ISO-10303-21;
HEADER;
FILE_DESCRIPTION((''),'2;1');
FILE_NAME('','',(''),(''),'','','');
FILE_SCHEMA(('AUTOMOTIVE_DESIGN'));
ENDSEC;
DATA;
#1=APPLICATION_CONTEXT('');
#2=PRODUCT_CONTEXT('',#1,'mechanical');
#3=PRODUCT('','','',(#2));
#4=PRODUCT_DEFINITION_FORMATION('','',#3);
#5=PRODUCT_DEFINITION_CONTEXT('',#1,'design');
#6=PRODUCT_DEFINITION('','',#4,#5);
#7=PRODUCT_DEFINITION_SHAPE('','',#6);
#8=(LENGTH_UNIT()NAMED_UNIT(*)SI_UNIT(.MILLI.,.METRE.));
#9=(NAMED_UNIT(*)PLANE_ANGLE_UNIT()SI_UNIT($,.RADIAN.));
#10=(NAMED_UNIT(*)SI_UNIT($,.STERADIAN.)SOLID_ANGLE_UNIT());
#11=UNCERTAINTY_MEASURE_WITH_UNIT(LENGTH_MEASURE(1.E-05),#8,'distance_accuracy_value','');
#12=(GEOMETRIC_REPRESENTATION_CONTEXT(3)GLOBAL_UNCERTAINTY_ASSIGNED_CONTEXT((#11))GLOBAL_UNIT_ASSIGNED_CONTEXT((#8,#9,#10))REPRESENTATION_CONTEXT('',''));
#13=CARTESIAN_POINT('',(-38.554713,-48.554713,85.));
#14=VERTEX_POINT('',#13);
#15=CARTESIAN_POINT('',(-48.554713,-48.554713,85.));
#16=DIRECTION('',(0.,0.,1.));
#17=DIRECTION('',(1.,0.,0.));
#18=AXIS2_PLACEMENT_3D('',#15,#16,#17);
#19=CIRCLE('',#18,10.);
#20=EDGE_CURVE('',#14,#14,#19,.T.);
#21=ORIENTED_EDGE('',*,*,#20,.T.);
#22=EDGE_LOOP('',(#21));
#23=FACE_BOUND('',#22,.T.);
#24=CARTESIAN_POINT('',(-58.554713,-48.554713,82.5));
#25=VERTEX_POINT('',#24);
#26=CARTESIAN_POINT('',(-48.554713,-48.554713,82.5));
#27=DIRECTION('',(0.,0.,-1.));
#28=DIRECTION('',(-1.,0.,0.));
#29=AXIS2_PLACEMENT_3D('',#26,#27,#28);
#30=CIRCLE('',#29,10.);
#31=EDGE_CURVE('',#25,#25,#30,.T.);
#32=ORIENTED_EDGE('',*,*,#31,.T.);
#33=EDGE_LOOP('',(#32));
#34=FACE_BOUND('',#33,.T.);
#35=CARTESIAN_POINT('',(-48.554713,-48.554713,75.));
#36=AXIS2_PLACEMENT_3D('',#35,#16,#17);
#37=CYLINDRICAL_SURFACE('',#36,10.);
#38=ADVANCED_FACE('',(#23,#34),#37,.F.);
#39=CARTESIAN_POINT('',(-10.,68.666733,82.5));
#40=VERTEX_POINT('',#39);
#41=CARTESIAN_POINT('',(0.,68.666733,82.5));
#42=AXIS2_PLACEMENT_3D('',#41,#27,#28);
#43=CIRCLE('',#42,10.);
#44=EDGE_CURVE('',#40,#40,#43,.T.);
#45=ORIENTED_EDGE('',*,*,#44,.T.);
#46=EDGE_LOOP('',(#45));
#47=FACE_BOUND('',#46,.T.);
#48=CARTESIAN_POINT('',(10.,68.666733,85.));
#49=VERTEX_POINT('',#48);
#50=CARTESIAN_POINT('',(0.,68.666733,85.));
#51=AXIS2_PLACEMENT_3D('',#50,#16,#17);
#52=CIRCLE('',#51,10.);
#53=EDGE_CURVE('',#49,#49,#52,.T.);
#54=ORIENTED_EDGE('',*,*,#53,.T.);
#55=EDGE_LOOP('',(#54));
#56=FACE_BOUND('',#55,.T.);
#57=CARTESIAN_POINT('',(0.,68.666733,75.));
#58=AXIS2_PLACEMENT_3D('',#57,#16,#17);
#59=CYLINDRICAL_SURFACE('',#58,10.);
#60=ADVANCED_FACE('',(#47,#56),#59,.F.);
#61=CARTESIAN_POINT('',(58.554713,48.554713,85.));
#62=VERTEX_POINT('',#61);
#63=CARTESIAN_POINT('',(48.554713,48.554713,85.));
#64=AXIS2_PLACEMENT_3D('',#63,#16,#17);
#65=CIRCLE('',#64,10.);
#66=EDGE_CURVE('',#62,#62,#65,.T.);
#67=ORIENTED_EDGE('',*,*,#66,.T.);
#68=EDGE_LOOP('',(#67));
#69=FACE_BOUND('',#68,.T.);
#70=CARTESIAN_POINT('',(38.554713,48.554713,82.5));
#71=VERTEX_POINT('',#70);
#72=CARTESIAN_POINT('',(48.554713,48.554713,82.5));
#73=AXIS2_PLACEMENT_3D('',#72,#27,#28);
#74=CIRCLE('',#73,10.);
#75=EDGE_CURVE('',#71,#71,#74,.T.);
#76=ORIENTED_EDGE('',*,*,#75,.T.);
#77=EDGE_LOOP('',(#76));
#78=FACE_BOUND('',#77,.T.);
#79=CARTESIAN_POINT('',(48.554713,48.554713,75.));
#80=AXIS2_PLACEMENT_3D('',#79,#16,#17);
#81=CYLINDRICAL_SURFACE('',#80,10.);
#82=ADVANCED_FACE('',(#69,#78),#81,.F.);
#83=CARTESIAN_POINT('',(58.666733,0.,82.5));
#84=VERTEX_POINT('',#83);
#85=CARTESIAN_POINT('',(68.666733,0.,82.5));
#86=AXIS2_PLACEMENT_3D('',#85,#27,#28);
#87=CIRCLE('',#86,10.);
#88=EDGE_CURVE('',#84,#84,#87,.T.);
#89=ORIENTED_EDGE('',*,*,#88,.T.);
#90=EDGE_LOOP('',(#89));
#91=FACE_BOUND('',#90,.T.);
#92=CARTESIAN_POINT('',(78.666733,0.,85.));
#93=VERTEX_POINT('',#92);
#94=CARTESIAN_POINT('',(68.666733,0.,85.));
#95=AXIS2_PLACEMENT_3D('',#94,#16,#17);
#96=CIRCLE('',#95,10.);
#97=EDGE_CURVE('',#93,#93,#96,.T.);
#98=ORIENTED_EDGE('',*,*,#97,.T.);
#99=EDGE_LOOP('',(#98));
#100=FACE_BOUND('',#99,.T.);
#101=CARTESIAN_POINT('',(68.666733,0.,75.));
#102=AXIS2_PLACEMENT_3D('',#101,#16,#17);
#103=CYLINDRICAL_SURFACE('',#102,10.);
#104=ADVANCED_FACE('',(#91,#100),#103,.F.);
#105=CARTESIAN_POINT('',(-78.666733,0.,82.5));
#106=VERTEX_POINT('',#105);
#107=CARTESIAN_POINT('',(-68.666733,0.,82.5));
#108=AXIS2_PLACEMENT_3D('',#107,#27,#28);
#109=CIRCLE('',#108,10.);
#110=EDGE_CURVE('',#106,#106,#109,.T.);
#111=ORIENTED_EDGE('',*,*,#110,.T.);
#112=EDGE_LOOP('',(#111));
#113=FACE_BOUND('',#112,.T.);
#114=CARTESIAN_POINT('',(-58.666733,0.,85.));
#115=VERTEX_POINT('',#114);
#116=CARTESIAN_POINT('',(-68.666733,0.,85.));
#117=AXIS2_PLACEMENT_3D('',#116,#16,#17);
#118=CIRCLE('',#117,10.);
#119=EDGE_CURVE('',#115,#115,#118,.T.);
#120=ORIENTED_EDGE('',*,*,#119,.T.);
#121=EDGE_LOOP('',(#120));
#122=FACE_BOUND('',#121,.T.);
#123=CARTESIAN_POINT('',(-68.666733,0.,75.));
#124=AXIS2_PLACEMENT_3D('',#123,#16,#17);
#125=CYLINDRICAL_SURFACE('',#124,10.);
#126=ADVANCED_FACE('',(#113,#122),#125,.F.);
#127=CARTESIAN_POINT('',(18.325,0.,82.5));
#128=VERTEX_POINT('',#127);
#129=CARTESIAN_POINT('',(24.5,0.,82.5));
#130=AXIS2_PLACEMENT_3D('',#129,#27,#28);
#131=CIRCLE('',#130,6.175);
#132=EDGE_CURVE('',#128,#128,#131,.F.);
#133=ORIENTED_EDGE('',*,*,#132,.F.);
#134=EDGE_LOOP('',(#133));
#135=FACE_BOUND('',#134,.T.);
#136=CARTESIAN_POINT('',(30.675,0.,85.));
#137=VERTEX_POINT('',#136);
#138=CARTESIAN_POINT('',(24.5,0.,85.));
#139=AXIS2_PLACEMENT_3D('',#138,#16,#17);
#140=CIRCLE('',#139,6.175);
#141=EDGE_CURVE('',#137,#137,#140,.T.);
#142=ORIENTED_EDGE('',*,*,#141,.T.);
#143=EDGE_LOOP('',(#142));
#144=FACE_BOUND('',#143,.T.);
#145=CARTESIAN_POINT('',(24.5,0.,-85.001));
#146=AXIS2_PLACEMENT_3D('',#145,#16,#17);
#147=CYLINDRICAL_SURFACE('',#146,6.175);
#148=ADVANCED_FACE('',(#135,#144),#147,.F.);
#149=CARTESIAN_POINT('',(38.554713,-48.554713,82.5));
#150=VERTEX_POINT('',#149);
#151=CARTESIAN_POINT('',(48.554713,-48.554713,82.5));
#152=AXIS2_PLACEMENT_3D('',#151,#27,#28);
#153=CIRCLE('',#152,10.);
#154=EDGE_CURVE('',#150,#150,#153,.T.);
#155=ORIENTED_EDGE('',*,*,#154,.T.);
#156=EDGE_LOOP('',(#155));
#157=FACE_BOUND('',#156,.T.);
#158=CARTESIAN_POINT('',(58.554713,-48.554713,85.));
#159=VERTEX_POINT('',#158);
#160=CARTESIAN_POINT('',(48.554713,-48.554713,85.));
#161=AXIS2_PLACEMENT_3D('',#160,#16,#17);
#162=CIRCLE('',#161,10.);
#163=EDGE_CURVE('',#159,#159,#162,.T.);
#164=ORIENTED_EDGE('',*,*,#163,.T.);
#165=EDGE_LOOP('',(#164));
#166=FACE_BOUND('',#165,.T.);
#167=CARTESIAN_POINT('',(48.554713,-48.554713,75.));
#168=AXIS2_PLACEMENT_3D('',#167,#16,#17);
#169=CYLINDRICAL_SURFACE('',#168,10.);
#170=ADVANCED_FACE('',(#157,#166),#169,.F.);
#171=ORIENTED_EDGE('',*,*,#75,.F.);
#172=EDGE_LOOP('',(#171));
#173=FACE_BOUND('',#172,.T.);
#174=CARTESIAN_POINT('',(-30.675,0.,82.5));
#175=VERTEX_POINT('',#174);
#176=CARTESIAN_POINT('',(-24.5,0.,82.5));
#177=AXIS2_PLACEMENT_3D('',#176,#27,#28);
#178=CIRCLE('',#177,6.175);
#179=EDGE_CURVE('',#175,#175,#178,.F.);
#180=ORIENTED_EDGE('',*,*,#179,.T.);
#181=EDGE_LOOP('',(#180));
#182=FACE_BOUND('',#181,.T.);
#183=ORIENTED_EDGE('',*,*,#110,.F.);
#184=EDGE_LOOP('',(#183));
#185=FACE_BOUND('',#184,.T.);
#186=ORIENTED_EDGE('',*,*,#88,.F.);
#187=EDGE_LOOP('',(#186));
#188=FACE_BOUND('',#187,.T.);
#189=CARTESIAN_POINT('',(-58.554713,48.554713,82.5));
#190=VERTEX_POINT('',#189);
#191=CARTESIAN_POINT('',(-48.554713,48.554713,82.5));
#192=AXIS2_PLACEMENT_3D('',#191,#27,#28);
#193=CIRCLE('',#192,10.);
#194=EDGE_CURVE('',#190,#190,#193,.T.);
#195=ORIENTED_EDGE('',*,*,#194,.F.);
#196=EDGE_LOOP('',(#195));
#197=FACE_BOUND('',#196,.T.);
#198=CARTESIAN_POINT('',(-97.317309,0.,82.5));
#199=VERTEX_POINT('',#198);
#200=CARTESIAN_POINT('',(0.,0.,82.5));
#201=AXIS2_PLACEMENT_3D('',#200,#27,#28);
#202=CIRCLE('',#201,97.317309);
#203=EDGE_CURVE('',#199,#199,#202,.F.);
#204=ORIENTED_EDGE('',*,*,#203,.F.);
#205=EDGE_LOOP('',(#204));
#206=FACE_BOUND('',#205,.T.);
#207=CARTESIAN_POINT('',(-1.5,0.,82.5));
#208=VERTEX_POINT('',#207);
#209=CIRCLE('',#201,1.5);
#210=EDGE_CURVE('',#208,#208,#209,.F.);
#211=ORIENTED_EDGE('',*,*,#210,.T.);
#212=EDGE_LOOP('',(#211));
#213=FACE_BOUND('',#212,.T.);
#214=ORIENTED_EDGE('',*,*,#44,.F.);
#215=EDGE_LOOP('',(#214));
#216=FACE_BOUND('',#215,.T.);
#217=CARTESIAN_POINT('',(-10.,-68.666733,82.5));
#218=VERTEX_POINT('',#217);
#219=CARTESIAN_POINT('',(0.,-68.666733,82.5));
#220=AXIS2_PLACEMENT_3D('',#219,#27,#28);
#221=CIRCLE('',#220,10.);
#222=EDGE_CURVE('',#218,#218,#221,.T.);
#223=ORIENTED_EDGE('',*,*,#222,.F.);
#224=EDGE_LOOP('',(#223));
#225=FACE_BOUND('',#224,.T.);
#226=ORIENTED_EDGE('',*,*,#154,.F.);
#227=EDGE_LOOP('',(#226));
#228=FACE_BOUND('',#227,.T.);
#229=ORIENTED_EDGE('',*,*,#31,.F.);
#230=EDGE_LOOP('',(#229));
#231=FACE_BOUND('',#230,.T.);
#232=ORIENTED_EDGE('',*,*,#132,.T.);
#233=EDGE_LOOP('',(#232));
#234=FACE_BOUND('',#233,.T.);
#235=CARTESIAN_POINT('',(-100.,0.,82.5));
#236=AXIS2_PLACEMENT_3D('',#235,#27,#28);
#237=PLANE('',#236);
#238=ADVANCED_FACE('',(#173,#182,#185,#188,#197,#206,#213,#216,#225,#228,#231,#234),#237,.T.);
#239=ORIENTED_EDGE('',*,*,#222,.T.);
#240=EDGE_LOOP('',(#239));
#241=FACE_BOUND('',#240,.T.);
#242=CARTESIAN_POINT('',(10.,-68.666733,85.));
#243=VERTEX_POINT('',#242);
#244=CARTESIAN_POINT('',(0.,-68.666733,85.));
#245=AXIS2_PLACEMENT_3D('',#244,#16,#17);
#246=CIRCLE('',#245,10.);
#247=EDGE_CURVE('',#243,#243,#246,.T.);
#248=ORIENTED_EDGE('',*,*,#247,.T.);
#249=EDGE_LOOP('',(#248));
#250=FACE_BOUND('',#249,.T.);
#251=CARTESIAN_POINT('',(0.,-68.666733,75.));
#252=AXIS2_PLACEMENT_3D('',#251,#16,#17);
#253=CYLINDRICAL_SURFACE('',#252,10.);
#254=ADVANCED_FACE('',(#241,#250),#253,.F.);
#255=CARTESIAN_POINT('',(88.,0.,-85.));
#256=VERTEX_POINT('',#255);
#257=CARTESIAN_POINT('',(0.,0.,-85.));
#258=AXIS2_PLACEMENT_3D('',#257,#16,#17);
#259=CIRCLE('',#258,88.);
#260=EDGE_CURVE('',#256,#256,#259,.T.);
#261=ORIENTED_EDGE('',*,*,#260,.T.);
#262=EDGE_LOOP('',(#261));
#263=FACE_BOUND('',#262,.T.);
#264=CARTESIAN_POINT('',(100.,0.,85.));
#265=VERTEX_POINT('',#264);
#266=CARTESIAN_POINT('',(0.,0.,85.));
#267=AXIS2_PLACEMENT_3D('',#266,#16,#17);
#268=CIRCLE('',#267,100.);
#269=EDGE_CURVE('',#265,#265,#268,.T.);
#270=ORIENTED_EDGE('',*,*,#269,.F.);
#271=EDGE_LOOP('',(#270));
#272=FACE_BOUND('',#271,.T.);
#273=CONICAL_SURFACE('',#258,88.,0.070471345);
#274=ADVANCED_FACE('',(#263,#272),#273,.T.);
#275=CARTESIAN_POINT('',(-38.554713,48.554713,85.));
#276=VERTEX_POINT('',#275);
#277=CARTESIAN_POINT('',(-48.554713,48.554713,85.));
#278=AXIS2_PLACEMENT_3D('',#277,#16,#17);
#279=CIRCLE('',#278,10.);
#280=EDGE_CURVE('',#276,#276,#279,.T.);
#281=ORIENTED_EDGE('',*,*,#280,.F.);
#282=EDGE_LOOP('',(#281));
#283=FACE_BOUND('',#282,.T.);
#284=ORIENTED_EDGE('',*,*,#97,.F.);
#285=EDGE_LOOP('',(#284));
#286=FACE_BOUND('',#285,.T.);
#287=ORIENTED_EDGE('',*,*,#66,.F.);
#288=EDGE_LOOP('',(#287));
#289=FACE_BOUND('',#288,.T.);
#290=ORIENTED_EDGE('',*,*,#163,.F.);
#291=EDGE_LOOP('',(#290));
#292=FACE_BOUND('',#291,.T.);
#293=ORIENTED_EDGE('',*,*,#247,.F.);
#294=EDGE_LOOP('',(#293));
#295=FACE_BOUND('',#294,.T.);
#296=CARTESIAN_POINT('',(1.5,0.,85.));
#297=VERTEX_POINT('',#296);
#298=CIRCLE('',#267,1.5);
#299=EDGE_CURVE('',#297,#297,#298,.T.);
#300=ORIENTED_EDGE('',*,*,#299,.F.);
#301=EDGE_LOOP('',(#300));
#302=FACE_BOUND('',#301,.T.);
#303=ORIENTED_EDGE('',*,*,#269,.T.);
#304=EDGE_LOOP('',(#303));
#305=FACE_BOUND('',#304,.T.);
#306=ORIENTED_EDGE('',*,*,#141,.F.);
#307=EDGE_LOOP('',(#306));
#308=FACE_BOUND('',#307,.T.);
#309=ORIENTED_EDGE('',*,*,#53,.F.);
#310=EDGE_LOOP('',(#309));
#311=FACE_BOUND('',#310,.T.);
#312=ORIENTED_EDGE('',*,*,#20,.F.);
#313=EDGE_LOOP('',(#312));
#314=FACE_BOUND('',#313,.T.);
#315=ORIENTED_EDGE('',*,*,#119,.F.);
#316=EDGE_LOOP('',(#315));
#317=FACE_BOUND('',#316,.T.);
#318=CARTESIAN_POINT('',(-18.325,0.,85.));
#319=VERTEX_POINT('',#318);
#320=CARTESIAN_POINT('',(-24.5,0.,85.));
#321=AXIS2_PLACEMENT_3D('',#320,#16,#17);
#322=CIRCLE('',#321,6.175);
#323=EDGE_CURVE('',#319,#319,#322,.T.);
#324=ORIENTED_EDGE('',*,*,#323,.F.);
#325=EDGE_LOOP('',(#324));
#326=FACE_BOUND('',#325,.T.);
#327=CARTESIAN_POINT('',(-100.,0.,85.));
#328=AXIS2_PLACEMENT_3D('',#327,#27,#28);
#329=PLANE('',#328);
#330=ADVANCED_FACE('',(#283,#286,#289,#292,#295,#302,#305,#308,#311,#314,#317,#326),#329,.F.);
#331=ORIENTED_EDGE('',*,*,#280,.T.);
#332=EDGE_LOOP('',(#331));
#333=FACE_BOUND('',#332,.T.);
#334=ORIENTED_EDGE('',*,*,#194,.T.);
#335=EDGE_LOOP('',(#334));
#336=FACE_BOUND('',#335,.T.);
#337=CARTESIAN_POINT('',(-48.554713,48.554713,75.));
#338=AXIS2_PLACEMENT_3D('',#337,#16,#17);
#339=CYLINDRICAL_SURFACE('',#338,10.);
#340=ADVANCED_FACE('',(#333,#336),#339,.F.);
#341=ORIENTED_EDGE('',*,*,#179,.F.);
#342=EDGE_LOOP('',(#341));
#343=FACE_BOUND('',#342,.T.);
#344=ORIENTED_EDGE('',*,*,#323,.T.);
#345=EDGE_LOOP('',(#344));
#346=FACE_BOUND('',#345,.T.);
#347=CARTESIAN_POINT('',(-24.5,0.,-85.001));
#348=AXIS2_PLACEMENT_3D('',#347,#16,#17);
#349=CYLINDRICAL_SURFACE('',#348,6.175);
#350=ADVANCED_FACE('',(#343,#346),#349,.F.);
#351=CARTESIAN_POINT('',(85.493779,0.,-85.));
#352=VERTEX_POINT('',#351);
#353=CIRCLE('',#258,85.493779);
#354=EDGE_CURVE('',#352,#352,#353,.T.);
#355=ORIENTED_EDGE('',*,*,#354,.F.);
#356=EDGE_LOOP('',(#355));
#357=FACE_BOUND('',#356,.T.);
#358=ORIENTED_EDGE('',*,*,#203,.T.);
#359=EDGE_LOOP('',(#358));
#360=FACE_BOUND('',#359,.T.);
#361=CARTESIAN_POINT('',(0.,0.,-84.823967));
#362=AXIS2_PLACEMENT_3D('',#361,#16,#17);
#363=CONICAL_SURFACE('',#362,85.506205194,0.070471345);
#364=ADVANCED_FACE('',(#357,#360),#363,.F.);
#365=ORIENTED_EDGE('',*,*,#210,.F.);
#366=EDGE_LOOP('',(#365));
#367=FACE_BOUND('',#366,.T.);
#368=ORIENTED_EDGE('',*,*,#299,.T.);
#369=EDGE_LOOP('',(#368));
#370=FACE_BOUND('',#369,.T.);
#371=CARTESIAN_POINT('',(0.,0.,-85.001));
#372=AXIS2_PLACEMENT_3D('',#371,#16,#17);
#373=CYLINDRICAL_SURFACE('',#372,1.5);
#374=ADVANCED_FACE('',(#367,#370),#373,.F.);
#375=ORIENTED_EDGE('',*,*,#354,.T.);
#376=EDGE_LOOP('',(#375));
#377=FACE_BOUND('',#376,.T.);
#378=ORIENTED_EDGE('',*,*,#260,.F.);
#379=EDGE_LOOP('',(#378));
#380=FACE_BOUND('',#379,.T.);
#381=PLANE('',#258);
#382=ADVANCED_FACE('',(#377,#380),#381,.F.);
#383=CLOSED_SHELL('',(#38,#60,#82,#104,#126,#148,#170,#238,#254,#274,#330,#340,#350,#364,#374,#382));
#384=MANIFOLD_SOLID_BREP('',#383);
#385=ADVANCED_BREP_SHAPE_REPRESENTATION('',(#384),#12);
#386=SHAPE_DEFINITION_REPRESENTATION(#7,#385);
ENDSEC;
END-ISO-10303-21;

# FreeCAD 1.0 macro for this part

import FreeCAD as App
import Part
import Sketcher


def faces_at(feature, points):
    """Names of the faces that lie closest to the given points."""
    faces = feature.Shape.Faces
    near = lambda p: min(range(len(faces)), key=lambda i: faces[i].distToShape(Part.Vertex(*p))[0])
    return sorted({f"Face{near(p) + 1}" for p in points})


def add_polygon(sketch, points):
    """Adds a closed chain of lines whose ends are joined by coincident constraints."""
    first, n = sketch.GeometryCount, len(points)
    for a, b in zip(points, points[1:] + points[:1]):
        sketch.addGeometry(Part.LineSegment(App.Vector(*a, 0), App.Vector(*b, 0)), False)
    for i in range(n):
        sketch.addConstraint(Sketcher.Constraint("Coincident", first + i, 2, first + (i + 1) % n, 1))

doc = App.newDocument("Part")
params = doc.addObject("Spreadsheet::Sheet", "Params")
for row, (alias, value) in enumerate([
    ("sketch1_width", "88 mm"),
    ("sketch1_width2", "100 mm"),
    ("sketch1_height", "170 mm"),
    ("revolution_angle", "360 deg"),
    ("thickness_wall", "2.5 mm"),
    ("sketch2_diameter", "3 mm"),
    ("sketch3_diameter", "12.35 mm"),
    ("sketch4_diameter", "12.35 mm"),
    ("sketch5_diameter", "20 mm"),
    ("pocket4_length", "10 mm"),
], start=1):
    params.set(f"A{row}", alias)
    params.set(f"B{row}", "=" + value)
    params.setAlias(f"B{row}", alias)

body = doc.addObject("PartDesign::Body", "Body")

sketch1 = doc.addObject("Sketcher::SketchObject", "Sketch")
body.addObject(sketch1)
sketch1.AttachmentSupport = (doc.XZ_Plane, [""])
sketch1.MapMode = "FlatFace"
add_polygon(sketch1, [(0, 85), (0, -85), (-88, -85), (-100, 85)])
sketch1.addConstraint([
    Sketcher.Constraint("Vertical", 0),
    Sketcher.Constraint("Horizontal", 1),
    Sketcher.Constraint("Horizontal", 3),
    Sketcher.Constraint("Symmetric", 0, 2, 3, 2, -1, 1),
    Sketcher.Constraint("DistanceX", 1, 2, 1, 1, 88.0),
    Sketcher.Constraint("DistanceX", 3, 1, 3, 2, 100.0),
    Sketcher.Constraint("DistanceY", 0, 2, 0, 1, 170.0),
])
sketch1.setExpression("Constraints[8]", "Params.sketch1_width")
sketch1.setExpression("Constraints[9]", "Params.sketch1_width2")
sketch1.setExpression("Constraints[10]", "Params.sketch1_height")
revolution = doc.addObject("PartDesign::Revolution", "Revolution")
body.addObject(revolution)
revolution.Profile = sketch1
revolution.ReferenceAxis = (sketch1, ["V_Axis"])
revolution.setExpression("Angle", "Params.revolution_angle")
doc.recompute()

thickness = doc.addObject("PartDesign::Thickness", "Thickness")
body.addObject(thickness)
thickness.Base = (revolution, faces_at(revolution, [(0, 0, -85)]))
thickness.setExpression("Value", "Params.thickness_wall")
thickness.Reversed = True
thickness.Join = "Intersection"

sketch2 = doc.addObject("Sketcher::SketchObject", "Sketch001")
body.addObject(sketch2)
sketch2.AttachmentSupport = (doc.XY_Plane, [""])
sketch2.MapMode = "FlatFace"
sketch2.AttachmentOffset = App.Placement(App.Vector(0, 0, 85), App.Rotation())
sketch2.addGeometry(Part.Circle(App.Vector(0, 0, 0), App.Vector(0, 0, 1), 1.5), False)
sketch2.addConstraint([
    Sketcher.Constraint("Coincident", 0, 3, -1, 1),
    Sketcher.Constraint("Diameter", 0, 3.0),
])
sketch2.setExpression("Constraints[1]", "Params.sketch2_diameter")
pocket1 = doc.addObject("PartDesign::Pocket", "Pocket")
body.addObject(pocket1)
pocket1.Profile = sketch2
pocket1.Type = "UpToFirst"

sketch3 = doc.addObject("Sketcher::SketchObject", "Sketch002")
body.addObject(sketch3)
sketch3.AttachmentSupport = (doc.XY_Plane, [""])
sketch3.MapMode = "FlatFace"
sketch3.AttachmentOffset = App.Placement(App.Vector(0, 0, 85), App.Rotation())
sketch3.addGeometry(Part.Circle(App.Vector(-24.5, 0, 0), App.Vector(0, 0, 1), 6.175), False)
sketch3.addConstraint([
    Sketcher.Constraint("PointOnObject", 0, 3, -1),
    Sketcher.Constraint("Diameter", 0, 12.35),
    Sketcher.Constraint("DistanceX", 0, 3, -1, 1, 24.5),
])
sketch3.setExpression("Constraints[1]", "Params.sketch3_diameter")
pocket2 = doc.addObject("PartDesign::Pocket", "Pocket001")
body.addObject(pocket2)
pocket2.Profile = sketch3
pocket2.Type = "UpToFirst"

sketch4 = doc.addObject("Sketcher::SketchObject", "Sketch003")
body.addObject(sketch4)
sketch4.AttachmentSupport = (doc.XY_Plane, [""])
sketch4.MapMode = "FlatFace"
sketch4.AttachmentOffset = App.Placement(App.Vector(0, 0, 85), App.Rotation())
sketch4.addGeometry(Part.Circle(App.Vector(24.5, 0, 0), App.Vector(0, 0, 1), 6.175), False)
sketch4.addConstraint([
    Sketcher.Constraint("PointOnObject", 0, 3, -1),
    Sketcher.Constraint("Diameter", 0, 12.35),
    Sketcher.Constraint("DistanceX", -1, 1, 0, 3, 24.5),
])
sketch4.setExpression("Constraints[1]", "Params.sketch4_diameter")
pocket3 = doc.addObject("PartDesign::Pocket", "Pocket002")
body.addObject(pocket3)
pocket3.Profile = sketch4
pocket3.Type = "UpToFirst"

sketch5 = doc.addObject("Sketcher::SketchObject", "Sketch004")
body.addObject(sketch5)
sketch5.AttachmentSupport = (doc.XY_Plane, [""])
sketch5.MapMode = "FlatFace"
sketch5.AttachmentOffset = App.Placement(App.Vector(0, 0, 85), App.Rotation())
sketch5.addGeometry([
    Part.Circle(App.Vector(0, 68.666733, 0), App.Vector(0, 0, 1), 10),
    Part.Circle(App.Vector(48.554713, 48.554713, 0), App.Vector(0, 0, 1), 10),
    Part.Circle(App.Vector(68.666733, 0, 0), App.Vector(0, 0, 1), 10),
    Part.Circle(App.Vector(48.554713, -48.554713, 0), App.Vector(0, 0, 1), 10),
    Part.Circle(App.Vector(0, -68.666733, 0), App.Vector(0, 0, 1), 10),
    Part.Circle(App.Vector(-48.554713, -48.554713, 0), App.Vector(0, 0, 1), 10),
    Part.Circle(App.Vector(-68.666733, 0, 0), App.Vector(0, 0, 1), 10),
    Part.Circle(App.Vector(-48.554713, 48.554713, 0), App.Vector(0, 0, 1), 10),
], False)
sketch5.addConstraint([
    Sketcher.Constraint("Equal", 0, 1),
    Sketcher.Constraint("Equal", 1, 2),
    Sketcher.Constraint("Equal", 2, 3),
    Sketcher.Constraint("Equal", 3, 4),
    Sketcher.Constraint("Equal", 4, 5),
    Sketcher.Constraint("Equal", 5, 6),
    Sketcher.Constraint("Equal", 6, 7),
    Sketcher.Constraint("Symmetric", 0, 3, 4, 3, -1, 1),
    Sketcher.Constraint("Symmetric", 1, 3, 5, 3, -1, 1),
    Sketcher.Constraint("Symmetric", 2, 3, 6, 3, -1, 1),
    Sketcher.Constraint("Symmetric", 3, 3, 7, 3, -1, 1),
    Sketcher.Constraint("Symmetric", 3, 3, 5, 3, -2),
    Sketcher.Constraint("PointOnObject", 0, 3, -2),
    Sketcher.Constraint("PointOnObject", 2, 3, -1),
    Sketcher.Constraint("Diameter", 0, 20.0),
    Sketcher.Constraint("DistanceY", 1, 3, 0, 3, 20.112021),
    Sketcher.Constraint("DistanceX", 1, 3, 2, 3, 20.112021),
    Sketcher.Constraint("DistanceY", -1, 1, 0, 3, 68.666733),
    Sketcher.Constraint("DistanceX", -1, 1, 1, 3, 48.554713),
])
sketch5.setExpression("Constraints[14]", "Params.sketch5_diameter")
pocket4 = doc.addObject("PartDesign::Pocket", "Pocket003")
body.addObject(pocket4)
pocket4.Profile = sketch5
pocket4.setExpression("Length", "Params.pocket4_length")

doc.recompute()
